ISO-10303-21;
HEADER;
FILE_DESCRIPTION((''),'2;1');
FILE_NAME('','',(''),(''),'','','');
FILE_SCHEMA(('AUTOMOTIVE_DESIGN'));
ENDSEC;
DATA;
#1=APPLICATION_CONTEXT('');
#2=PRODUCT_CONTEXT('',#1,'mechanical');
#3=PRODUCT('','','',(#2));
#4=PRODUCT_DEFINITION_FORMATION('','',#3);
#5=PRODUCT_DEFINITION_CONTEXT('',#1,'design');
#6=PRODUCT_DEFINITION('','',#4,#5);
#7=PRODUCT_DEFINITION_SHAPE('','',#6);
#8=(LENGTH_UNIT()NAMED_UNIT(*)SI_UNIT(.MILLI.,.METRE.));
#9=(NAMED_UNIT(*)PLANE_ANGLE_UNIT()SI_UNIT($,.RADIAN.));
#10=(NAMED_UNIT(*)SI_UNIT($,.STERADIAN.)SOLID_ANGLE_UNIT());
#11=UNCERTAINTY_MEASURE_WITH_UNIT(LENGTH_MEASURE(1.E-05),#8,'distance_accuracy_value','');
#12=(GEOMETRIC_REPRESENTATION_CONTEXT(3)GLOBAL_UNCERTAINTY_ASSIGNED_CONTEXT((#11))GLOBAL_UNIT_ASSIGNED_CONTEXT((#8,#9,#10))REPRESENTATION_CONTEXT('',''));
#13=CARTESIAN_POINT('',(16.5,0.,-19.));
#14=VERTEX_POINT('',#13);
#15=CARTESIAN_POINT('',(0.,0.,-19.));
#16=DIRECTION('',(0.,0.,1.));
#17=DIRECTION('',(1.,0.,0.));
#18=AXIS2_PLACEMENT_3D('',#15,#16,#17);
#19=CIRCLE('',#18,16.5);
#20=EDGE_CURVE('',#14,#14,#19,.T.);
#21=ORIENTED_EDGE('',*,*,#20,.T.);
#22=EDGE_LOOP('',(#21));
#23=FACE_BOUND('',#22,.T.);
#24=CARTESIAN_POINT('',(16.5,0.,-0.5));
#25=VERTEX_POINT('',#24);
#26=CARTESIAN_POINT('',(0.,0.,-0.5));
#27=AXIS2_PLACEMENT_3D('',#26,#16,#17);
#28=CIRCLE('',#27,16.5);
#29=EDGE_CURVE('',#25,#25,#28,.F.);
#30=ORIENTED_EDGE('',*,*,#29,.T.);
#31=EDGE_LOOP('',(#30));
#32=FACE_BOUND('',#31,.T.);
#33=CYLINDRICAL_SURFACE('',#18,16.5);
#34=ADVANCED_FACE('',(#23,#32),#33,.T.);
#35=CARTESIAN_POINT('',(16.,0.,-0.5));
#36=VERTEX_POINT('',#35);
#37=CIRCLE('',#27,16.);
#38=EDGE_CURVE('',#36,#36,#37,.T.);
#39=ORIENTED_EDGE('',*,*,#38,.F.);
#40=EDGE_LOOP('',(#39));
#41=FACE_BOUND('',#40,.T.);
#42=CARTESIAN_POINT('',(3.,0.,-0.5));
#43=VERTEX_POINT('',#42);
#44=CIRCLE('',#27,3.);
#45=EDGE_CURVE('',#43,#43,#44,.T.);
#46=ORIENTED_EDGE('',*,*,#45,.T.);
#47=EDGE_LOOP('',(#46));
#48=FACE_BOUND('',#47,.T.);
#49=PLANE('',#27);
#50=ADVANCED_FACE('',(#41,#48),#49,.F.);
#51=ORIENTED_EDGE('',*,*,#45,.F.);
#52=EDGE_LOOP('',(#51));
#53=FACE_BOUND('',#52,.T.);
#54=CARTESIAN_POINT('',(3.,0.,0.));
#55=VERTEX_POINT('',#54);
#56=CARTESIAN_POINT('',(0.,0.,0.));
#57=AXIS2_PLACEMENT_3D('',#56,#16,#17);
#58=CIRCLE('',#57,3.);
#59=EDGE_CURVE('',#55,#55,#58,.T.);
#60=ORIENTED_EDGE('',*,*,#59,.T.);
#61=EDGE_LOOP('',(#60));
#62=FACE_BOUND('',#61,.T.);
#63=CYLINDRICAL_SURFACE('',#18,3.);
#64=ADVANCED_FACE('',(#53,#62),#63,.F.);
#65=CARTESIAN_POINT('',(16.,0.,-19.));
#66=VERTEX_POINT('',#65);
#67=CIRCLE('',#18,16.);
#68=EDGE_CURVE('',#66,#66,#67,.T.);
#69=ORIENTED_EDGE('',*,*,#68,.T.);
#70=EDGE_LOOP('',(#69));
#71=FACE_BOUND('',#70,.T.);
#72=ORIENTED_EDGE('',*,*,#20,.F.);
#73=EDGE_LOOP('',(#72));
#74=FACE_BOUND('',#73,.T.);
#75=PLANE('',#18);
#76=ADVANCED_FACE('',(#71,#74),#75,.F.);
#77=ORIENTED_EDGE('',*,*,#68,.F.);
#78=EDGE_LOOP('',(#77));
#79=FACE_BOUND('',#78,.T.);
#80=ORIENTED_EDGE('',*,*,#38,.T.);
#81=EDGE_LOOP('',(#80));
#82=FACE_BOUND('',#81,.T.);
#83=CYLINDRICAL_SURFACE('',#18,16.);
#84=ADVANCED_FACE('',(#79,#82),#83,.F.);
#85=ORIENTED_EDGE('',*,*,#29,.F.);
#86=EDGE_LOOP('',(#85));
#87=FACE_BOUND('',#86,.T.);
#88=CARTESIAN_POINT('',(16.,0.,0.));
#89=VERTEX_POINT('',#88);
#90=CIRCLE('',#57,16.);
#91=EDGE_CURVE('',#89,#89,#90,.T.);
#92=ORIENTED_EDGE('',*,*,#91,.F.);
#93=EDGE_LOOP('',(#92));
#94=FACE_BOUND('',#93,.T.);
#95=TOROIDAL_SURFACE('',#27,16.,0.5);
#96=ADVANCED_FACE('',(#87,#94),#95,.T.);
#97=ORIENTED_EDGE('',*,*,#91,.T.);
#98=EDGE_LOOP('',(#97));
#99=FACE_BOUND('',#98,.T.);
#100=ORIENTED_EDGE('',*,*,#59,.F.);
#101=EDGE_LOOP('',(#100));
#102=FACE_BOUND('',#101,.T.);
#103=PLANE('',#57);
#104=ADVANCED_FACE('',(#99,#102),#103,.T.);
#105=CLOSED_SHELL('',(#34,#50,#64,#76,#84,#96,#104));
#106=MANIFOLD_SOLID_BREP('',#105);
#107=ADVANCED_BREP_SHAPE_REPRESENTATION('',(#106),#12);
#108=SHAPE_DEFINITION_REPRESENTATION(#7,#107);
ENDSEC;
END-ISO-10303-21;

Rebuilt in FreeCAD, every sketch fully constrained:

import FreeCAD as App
import Part
import Sketcher

V = App.Vector


def edges_at(feature, points):
    """Names of the edges that pass closest to the given points."""
    edges = feature.Shape.Edges
    near = lambda p: min(range(len(edges)), key=lambda i: edges[i].distToShape(Part.Vertex(*p))[0])
    return sorted({f"Edge{near(p) + 1}" for p in points})


def faces_at(feature, points):
    """Names of the faces that lie closest to the given points."""
    faces = feature.Shape.Faces
    near = lambda p: min(range(len(faces)), key=lambda i: faces[i].distToShape(Part.Vertex(*p))[0])
    return sorted({f"Face{near(p) + 1}" for p in points})

doc = App.newDocument("Part")
body = doc.addObject("PartDesign::Body", "Body")

# Sketch on XY plane
sketch1 = doc.addObject("Sketcher::SketchObject", "Sketch")
body.addObject(sketch1)
sketch1.AttachmentSupport = (doc.XY_Plane, [""])
sketch1.MapMode = "FlatFace"
sketch1.addGeometry(Part.Circle(V(0, 0, 0), V(0, 0, 1), 16), False)
sketch1.addConstraint([
    Sketcher.Constraint("Coincident", 0, 3, -1, 1),
    Sketcher.Constraint("Diameter", 0, 33.0),
])
pad1 = doc.addObject("PartDesign::Pad", "Pad")
body.addObject(pad1)
pad1.Profile = sketch1
pad1.Length = 19
pad1.Reversed = True
doc.recompute()

thickness = doc.addObject("PartDesign::Thickness", "Thickness")
body.addObject(thickness)
thickness.Base = (pad1, faces_at(pad1, [(0, 0, -19)]))
thickness.Value = 0.5
thickness.Reversed = True
thickness.Join = "Intersection"

# Sketch on XY plane
sketch2 = doc.addObject("Sketcher::SketchObject", "Sketch001")
body.addObject(sketch2)
sketch2.AttachmentSupport = (doc.XY_Plane, [""])
sketch2.MapMode = "FlatFace"
sketch2.addGeometry(Part.Circle(V(0, 0, 0), V(0, 0, 1), 3), False)
sketch2.addConstraint([
    Sketcher.Constraint("Coincident", 0, 3, -1, 1),
    Sketcher.Constraint("Diameter", 0, 6.0),
])
pocket1 = doc.addObject("PartDesign::Pocket", "Pocket")
body.addObject(pocket1)
pocket1.Profile = sketch2
pocket1.Type = "ThroughAll"
doc.recompute()

fillet = doc.addObject("PartDesign::Fillet", "Fillet")
body.addObject(fillet)
fillet.Base = (pocket1, edges_at(pocket1, [(-16.5, 0, 0)]))
fillet.Radius = 0.5

doc.recompute()
